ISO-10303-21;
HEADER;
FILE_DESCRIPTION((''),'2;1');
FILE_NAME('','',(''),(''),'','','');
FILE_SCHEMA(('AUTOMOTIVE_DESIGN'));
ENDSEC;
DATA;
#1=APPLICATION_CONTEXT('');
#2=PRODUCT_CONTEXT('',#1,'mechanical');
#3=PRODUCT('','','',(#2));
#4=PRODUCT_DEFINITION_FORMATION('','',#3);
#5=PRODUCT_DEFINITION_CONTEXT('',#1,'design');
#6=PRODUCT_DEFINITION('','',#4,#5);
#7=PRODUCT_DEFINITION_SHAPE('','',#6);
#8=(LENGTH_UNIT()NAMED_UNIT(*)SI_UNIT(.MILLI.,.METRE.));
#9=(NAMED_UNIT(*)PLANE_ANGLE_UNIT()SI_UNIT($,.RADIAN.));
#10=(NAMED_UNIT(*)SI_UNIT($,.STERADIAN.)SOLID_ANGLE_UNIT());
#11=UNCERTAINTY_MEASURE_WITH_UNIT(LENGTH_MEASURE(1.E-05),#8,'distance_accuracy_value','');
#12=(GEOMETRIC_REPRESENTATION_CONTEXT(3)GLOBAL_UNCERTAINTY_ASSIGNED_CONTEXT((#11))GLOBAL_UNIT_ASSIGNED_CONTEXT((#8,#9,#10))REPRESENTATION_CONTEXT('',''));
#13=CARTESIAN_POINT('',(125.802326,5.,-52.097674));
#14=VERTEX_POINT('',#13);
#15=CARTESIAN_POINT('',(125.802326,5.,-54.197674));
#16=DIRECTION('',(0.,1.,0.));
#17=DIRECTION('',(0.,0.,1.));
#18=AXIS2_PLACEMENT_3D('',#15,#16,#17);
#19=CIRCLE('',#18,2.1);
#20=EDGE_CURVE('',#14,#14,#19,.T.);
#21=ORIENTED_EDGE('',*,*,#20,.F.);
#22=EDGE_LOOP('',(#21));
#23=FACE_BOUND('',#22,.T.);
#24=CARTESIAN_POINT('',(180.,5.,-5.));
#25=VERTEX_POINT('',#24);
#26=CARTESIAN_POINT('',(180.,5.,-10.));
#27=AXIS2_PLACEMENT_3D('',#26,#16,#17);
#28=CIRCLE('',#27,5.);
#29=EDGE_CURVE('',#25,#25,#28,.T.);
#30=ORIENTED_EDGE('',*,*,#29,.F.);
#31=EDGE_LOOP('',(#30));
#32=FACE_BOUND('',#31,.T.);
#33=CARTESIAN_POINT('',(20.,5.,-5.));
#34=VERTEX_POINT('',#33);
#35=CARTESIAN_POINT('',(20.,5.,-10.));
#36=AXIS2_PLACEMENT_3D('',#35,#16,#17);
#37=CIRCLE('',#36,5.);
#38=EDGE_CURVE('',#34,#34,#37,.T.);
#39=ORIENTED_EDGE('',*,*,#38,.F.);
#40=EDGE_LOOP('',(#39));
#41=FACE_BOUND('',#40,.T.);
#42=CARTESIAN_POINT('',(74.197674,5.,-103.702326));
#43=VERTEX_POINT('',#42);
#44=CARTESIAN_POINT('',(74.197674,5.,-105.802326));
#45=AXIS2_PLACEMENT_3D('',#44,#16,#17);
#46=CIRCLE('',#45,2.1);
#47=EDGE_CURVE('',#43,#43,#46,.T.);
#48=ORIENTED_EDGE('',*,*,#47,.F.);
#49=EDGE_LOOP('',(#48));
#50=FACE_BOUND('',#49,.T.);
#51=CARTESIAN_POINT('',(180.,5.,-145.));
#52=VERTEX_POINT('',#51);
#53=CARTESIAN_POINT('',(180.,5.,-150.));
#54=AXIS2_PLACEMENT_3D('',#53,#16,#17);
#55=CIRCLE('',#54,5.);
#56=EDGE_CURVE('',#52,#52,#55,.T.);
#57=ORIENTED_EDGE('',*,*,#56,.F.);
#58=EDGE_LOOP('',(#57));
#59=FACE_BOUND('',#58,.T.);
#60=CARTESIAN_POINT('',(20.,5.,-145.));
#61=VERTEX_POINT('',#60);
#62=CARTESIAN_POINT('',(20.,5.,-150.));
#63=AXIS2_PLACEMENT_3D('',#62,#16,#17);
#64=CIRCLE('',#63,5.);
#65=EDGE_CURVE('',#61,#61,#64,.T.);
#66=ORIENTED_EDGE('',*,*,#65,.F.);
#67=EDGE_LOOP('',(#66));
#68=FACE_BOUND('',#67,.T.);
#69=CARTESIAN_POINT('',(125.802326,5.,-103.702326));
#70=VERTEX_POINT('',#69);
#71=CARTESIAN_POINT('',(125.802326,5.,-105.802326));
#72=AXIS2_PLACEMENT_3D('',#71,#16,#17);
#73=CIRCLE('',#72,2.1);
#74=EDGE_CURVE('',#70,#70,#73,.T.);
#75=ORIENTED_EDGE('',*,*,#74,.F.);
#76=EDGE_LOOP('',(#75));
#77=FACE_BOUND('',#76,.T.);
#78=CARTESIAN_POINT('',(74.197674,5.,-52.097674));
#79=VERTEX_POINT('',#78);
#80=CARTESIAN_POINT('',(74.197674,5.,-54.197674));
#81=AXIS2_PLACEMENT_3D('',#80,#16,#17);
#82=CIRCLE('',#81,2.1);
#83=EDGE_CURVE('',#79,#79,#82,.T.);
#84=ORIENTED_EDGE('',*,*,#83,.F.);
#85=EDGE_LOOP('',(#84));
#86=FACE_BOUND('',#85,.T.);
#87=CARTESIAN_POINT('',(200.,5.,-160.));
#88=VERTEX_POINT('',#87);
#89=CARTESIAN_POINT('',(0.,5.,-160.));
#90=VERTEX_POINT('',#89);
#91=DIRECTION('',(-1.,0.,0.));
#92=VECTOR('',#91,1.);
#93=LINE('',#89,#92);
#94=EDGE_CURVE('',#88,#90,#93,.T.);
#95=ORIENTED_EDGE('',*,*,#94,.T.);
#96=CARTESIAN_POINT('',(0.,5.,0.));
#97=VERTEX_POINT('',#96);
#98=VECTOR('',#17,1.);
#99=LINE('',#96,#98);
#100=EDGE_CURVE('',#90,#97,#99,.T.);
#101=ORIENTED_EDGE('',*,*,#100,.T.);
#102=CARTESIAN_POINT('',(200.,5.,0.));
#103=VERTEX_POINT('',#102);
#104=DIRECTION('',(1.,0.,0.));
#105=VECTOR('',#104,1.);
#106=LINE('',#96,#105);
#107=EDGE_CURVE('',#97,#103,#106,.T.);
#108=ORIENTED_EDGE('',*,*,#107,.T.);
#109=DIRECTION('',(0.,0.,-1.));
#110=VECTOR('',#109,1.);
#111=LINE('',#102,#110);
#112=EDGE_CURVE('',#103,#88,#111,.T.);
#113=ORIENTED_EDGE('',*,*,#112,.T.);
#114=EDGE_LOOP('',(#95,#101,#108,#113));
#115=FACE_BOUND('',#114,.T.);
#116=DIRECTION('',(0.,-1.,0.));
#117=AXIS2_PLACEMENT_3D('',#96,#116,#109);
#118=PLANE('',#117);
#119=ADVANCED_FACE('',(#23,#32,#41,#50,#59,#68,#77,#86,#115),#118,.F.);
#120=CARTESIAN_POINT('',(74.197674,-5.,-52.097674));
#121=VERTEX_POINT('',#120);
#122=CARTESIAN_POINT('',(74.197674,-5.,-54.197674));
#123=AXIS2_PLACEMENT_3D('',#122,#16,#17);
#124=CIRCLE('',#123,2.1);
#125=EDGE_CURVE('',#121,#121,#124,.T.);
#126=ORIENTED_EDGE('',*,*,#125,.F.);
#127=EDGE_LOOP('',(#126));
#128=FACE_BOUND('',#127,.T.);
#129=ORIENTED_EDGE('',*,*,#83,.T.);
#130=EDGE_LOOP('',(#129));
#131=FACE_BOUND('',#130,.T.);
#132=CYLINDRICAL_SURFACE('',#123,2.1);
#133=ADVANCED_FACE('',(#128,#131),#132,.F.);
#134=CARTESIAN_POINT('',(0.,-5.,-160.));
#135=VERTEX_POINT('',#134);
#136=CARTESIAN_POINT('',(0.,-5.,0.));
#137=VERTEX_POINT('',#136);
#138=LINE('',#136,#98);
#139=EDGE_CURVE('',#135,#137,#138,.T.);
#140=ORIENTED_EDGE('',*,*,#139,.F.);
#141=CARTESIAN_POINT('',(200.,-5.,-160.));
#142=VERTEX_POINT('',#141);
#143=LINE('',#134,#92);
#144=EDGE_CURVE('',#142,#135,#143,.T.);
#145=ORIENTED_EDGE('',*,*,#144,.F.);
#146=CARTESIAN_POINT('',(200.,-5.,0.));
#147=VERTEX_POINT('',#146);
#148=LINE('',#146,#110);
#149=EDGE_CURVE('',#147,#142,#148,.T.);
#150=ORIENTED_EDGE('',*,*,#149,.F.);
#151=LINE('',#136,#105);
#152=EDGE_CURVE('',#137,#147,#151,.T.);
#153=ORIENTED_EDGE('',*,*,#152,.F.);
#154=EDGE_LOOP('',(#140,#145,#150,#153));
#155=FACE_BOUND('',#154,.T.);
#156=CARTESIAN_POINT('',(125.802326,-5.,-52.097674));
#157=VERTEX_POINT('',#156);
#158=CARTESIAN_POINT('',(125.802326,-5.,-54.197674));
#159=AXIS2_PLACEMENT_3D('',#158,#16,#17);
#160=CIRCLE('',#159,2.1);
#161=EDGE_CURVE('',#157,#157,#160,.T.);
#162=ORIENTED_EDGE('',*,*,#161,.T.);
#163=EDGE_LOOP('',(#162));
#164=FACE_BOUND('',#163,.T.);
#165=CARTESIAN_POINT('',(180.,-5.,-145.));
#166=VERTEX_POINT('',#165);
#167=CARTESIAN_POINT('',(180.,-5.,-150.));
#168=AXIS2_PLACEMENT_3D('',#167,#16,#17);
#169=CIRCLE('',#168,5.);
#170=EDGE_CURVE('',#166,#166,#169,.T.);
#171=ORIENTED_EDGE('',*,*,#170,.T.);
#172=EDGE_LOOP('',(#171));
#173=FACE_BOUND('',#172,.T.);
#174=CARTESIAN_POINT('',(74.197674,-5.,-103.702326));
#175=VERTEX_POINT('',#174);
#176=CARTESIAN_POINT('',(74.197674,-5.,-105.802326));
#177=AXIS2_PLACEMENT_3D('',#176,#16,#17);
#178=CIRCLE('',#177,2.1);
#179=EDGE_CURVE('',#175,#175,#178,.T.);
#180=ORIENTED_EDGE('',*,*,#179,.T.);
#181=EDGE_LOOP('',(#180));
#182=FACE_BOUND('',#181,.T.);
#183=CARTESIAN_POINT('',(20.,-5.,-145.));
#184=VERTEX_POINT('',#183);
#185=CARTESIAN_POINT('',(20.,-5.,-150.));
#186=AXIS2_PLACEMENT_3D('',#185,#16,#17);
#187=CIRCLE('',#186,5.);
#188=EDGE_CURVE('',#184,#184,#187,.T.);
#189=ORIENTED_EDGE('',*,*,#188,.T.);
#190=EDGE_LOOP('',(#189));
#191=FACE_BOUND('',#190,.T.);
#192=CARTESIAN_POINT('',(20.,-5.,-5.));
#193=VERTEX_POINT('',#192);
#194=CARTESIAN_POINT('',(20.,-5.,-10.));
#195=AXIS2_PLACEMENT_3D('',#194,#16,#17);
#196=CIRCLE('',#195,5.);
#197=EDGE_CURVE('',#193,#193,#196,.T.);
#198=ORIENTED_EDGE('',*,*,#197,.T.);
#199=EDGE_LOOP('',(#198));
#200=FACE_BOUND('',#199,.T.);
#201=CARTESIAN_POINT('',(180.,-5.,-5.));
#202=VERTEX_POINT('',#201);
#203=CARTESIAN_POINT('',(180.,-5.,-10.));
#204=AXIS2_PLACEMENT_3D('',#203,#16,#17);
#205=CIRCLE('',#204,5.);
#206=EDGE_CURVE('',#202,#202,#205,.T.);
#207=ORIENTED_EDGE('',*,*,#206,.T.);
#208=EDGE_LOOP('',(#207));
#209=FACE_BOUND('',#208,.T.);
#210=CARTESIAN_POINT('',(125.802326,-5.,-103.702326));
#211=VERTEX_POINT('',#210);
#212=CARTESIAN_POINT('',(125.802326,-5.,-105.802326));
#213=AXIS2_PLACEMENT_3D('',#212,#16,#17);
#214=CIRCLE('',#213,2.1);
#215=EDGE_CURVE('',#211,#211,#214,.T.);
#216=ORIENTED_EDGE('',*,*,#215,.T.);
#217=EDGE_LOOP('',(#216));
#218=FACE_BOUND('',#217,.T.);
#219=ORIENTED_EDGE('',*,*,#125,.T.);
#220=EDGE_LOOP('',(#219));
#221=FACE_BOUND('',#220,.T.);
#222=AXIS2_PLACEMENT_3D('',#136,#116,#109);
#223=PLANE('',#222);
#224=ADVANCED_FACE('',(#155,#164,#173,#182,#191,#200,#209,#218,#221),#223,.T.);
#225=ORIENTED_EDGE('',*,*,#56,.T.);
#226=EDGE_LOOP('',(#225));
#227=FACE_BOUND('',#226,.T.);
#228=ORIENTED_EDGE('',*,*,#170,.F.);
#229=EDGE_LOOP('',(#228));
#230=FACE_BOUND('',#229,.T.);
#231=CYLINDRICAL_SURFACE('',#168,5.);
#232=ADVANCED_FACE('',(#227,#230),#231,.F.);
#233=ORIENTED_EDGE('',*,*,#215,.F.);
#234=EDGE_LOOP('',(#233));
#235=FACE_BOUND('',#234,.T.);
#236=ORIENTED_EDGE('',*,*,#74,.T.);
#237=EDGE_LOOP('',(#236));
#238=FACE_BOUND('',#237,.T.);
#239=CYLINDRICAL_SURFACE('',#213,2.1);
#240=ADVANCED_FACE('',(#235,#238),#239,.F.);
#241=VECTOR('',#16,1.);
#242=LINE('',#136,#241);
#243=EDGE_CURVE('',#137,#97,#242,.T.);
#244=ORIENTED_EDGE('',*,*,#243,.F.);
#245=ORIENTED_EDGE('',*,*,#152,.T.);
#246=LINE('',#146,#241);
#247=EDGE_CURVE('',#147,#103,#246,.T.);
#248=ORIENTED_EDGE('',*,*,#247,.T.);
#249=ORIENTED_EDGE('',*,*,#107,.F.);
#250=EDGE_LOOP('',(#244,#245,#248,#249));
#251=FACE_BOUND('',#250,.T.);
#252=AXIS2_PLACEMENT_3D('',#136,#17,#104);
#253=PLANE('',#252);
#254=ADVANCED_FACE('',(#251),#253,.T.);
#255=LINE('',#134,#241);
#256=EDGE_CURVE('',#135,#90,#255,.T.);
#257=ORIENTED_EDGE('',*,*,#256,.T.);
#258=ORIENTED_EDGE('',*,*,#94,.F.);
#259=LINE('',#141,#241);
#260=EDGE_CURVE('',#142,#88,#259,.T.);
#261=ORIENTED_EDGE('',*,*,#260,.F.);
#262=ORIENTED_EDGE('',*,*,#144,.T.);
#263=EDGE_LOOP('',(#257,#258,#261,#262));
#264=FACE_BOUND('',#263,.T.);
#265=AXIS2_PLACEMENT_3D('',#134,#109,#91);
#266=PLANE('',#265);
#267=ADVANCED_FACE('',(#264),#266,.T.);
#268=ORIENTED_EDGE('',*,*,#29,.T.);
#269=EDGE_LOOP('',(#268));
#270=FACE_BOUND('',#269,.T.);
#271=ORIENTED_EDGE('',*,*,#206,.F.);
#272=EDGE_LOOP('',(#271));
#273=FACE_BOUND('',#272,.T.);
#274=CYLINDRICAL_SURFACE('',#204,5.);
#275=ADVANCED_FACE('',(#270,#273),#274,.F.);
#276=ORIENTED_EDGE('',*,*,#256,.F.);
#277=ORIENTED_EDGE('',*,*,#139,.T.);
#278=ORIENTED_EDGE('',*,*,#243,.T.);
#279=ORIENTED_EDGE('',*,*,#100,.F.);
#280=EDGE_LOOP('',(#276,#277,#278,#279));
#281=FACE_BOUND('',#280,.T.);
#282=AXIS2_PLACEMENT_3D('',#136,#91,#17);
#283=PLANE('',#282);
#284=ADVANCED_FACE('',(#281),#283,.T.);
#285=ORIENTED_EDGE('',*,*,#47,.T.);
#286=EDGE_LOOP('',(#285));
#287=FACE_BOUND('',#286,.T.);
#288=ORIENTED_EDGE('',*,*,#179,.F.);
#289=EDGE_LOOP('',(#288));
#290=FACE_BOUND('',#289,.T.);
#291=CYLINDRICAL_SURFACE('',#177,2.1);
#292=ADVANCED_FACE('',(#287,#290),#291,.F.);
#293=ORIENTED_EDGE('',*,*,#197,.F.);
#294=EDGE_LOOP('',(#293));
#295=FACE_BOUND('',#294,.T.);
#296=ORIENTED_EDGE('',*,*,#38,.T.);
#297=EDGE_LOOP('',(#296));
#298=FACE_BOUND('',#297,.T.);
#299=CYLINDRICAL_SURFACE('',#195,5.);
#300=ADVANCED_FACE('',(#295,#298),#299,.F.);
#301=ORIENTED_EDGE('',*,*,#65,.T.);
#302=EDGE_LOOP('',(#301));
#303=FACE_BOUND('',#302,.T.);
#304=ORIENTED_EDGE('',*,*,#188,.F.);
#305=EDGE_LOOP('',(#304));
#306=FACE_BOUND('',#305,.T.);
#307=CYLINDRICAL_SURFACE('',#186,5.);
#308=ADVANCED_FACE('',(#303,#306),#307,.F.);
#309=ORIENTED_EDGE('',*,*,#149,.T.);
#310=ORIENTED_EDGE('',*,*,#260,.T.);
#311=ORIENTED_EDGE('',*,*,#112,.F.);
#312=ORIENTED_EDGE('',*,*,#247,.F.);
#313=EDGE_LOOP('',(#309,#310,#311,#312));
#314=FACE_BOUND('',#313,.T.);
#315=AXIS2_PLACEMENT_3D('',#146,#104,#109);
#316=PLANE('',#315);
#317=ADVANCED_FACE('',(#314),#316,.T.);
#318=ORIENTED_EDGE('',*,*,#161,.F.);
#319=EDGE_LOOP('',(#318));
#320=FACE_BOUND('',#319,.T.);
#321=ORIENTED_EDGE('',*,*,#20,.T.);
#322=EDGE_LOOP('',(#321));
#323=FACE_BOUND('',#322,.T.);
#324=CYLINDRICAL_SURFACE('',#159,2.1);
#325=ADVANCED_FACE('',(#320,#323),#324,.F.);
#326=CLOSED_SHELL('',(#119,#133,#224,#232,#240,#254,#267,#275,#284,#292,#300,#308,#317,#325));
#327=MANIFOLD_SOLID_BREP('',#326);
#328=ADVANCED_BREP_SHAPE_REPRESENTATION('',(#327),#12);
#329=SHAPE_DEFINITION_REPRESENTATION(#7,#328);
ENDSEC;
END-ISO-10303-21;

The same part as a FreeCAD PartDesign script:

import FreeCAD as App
import Part
import Sketcher
from FreeCAD import Vector

doc = App.newDocument("Part")
body = doc.addObject("PartDesign::Body", "Body")

sketch1 = doc.addObject("Sketcher::SketchObject", "Sketch")
body.addObject(sketch1)
sketch1.AttachmentSupport = (doc.XZ_Plane, [""])
sketch1.MapMode = "FlatFace"
sketch1.addGeometry(Part.LineSegment(Vector(0, -160, 0), Vector(0, 0, 0)), False)
sketch1.addGeometry(Part.LineSegment(Vector(0, 0, 0), Vector(200, 0, 0)), False)
sketch1.addGeometry(Part.LineSegment(Vector(200, 0, 0), Vector(200, -160, 0)), False)
sketch1.addGeometry(Part.LineSegment(Vector(200, -160, 0), Vector(0, -160, 0)), False)
sketch1.addConstraint(Sketcher.Constraint("Coincident", 0, 2, 1, 1))
sketch1.addConstraint(Sketcher.Constraint("Coincident", 1, 2, 2, 1))
sketch1.addConstraint(Sketcher.Constraint("Coincident", 2, 2, 3, 1))
sketch1.addConstraint(Sketcher.Constraint("Coincident", 3, 2, 0, 1))
sketch1.addConstraint(Sketcher.Constraint("Vertical", 0))
sketch1.addConstraint(Sketcher.Constraint("Horizontal", 1))
sketch1.addConstraint(Sketcher.Constraint("Vertical", 2))
sketch1.addConstraint(Sketcher.Constraint("Horizontal", 3))
sketch1.addConstraint(Sketcher.Constraint("Coincident", 0, 2, -1, 1))
sketch1.addConstraint(Sketcher.Constraint("DistanceX", 1, 1, 1, 2, 200.0))
sketch1.addConstraint(Sketcher.Constraint("DistanceY", 0, 1, 0, 2, 160.0))
pad1 = doc.addObject("PartDesign::Pad", "Pad")
body.addObject(pad1)
pad1.Profile = sketch1
pad1.Type = "TwoLengths"
pad1.Length = 5
pad1.Length2 = 5
pad1.Reversed = True

sketch2 = doc.addObject("Sketcher::SketchObject", "Sketch001")
body.addObject(sketch2)
sketch2.AttachmentSupport = (doc.XZ_Plane, [""])
sketch2.MapMode = "FlatFace"
sketch2.AttachmentOffset = App.Placement(Vector(0, 0, -5), App.Rotation())
sketch2.addGeometry(Part.Circle(Vector(180, -150, 0), Vector(0, 0, 1), 5), False)
sketch2.addGeometry(Part.Circle(Vector(74.2, -105.8, 0), Vector(0, 0, 1), 2.1), False)
sketch2.addGeometry(Part.Circle(Vector(74.2, -54.2, 0), Vector(0, 0, 1), 2.1), False)
sketch2.addGeometry(Part.Circle(Vector(125.8, -54.2, 0), Vector(0, 0, 1), 2.1), False)
sketch2.addGeometry(Part.Circle(Vector(125.8, -105.8, 0), Vector(0, 0, 1), 2.1), False)
sketch2.addGeometry(Part.Circle(Vector(180, -10, 0), Vector(0, 0, 1), 5), False)
sketch2.addGeometry(Part.Circle(Vector(20, -10, 0), Vector(0, 0, 1), 5), False)
sketch2.addGeometry(Part.Circle(Vector(20, -150, 0), Vector(0, 0, 1), 5), False)
sketch2.addConstraint(Sketcher.Constraint("Equal", 1, 2))
sketch2.addConstraint(Sketcher.Constraint("Equal", 2, 3))
sketch2.addConstraint(Sketcher.Constraint("Equal", 3, 4))
sketch2.addConstraint(Sketcher.Constraint("Equal", 0, 5))
sketch2.addConstraint(Sketcher.Constraint("Equal", 5, 6))
sketch2.addConstraint(Sketcher.Constraint("Equal", 6, 7))
sketch2.addConstraint(Sketcher.Constraint("Horizontal", 2, 3, 3, 3))
sketch2.addConstraint(Sketcher.Constraint("Horizontal", 1, 3, 4, 3))
sketch2.addConstraint(Sketcher.Constraint("Horizontal", 5, 3, 6, 3))
sketch2.addConstraint(Sketcher.Constraint("Horizontal", 0, 3, 7, 3))
sketch2.addConstraint(Sketcher.Constraint("Vertical", 1, 3, 2, 3))
sketch2.addConstraint(Sketcher.Constraint("Vertical", 3, 3, 4, 3))
sketch2.addConstraint(Sketcher.Constraint("Vertical", 0, 3, 5, 3))
sketch2.addConstraint(Sketcher.Constraint("Vertical", 6, 3, 7, 3))
sketch2.addConstraint(Sketcher.Constraint("Diameter", 0, 10.0))
sketch2.addConstraint(Sketcher.Constraint("Diameter", 1, 4.2))
sketch2.addConstraint(Sketcher.Constraint("DistanceX", -1, 1, 0, 3, 180.0))
sketch2.addConstraint(Sketcher.Constraint("DistanceY", 0, 3, -1, 1, 150.0))
sketch2.addConstraint(Sketcher.Constraint("DistanceY", 5, 3, -1, 1, 10.0))
sketch2.addConstraint(Sketcher.Constraint("DistanceX", -1, 1, 6, 3, 20.0))
sketch2.addConstraint(Sketcher.Constraint("DistanceX", -1, 1, 1, 3, 74.197674))
sketch2.addConstraint(Sketcher.Constraint("DistanceY", 1, 3, -1, 1, 105.802326))
sketch2.addConstraint(Sketcher.Constraint("DistanceY", 2, 3, -1, 1, 54.197674))
sketch2.addConstraint(Sketcher.Constraint("DistanceX", -1, 1, 3, 3, 125.802326))
pocket1 = doc.addObject("PartDesign::Pocket", "Pocket")
body.addObject(pocket1)
pocket1.Profile = sketch2
pocket1.Type = "ThroughAll"
pocket1.Reversed = True

doc.recompute()
